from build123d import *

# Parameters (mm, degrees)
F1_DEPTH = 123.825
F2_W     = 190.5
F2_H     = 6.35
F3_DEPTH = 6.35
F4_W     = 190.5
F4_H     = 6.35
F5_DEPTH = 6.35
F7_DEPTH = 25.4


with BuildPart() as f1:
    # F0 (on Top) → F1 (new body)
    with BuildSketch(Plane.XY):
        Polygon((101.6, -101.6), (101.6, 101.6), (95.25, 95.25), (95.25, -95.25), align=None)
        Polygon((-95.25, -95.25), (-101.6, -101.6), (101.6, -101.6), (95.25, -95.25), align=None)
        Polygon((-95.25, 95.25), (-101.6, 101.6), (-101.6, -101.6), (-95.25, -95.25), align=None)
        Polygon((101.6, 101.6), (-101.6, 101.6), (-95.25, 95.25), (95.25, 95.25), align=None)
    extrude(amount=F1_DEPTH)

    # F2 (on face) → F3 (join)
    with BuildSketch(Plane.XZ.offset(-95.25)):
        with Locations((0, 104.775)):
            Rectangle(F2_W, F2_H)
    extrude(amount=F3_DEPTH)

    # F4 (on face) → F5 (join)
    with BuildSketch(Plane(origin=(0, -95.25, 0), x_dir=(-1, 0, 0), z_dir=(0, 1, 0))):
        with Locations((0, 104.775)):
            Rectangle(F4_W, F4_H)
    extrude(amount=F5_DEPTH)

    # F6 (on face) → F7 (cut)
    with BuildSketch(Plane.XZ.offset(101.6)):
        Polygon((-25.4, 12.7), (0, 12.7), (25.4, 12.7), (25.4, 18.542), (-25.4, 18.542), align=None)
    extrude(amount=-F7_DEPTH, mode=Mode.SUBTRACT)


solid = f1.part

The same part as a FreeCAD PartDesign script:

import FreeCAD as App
import Part
import Sketcher
from FreeCAD import Vector
Q = App.Units.Quantity

doc = App.newDocument("Part")
body = doc.addObject("PartDesign::Body", "Body")

# Sketch on XY plane
sketch1 = body.newObject("Sketcher::SketchObject", "Sketch")
sketch1.AttachmentSupport = (doc.getObject("XY_Plane"), [""])
sketch1.MapMode = "FlatFace"
sketch1.addGeometry([
    Part.LineSegment(Vector(102, -102, 0), Vector(102, 102, 0)),  # 0
    Part.LineSegment(Vector(102, 102, 0), Vector(-102, 102, 0)),  # 1
    Part.LineSegment(Vector(-102, 102, 0), Vector(-102, -102, 0)),  # 2
    Part.LineSegment(Vector(-102, -102, 0), Vector(102, -102, 0)),  # 3
    Part.LineSegment(Vector(95, 95, 0), Vector(95, -95, 0)),  # 4
    Part.LineSegment(Vector(95, -95, 0), Vector(-95, -95, 0)),  # 5
    Part.LineSegment(Vector(-95, -95, 0), Vector(-95, 95, 0)),  # 6
    Part.LineSegment(Vector(-95, 95, 0), Vector(95, 95, 0)),  # 7
], False)
sketch1.addConstraint([
    Sketcher.Constraint("Coincident", 0, 2, 1, 1),
    Sketcher.Constraint("Coincident", 1, 2, 2, 1),
    Sketcher.Constraint("Coincident", 2, 2, 3, 1),
    Sketcher.Constraint("Coincident", 3, 2, 0, 1),
    Sketcher.Constraint("Coincident", 4, 2, 5, 1),
    Sketcher.Constraint("Coincident", 5, 2, 6, 1),
    Sketcher.Constraint("Coincident", 6, 2, 7, 1),
    Sketcher.Constraint("Coincident", 7, 2, 4, 1),
    Sketcher.Constraint("Vertical", 0),
    Sketcher.Constraint("Horizontal", 1),
    Sketcher.Constraint("Vertical", 2),
    Sketcher.Constraint("Horizontal", 3),
    Sketcher.Constraint("Vertical", 4),
    Sketcher.Constraint("Horizontal", 5),
    Sketcher.Constraint("Vertical", 6),
    Sketcher.Constraint("Horizontal", 7),
    Sketcher.Constraint("Symmetric", 0, 2, 2, 2, -1, 1),
    Sketcher.Constraint("Symmetric", 4, 2, 6, 2, -1, 1),
    Sketcher.Constraint("Equal", 3, 0),
    Sketcher.Constraint("Equal", 7, 4),
    Sketcher.Constraint("DistanceX", 1, 2, 1, 1, Q("8 in")),
    Sketcher.Constraint("DistanceX", 5, 2, 5, 1, Q("7.5 in")),
])
pad1 = body.newObject("PartDesign::Pad", "Pad")
pad1.Profile = sketch1
pad1.Length = Q("4.875 in")

# Sketch on XZ plane
sketch2 = body.newObject("Sketcher::SketchObject", "Sketch001")
sketch2.AttachmentSupport = (doc.getObject("XZ_Plane"), [""])
sketch2.MapMode = "FlatFace"
sketch2.AttachmentOffset = App.Placement(Vector(0, 0, -3.75 * 25.4), App.Rotation())
sketch2.addGeometry([
    Part.LineSegment(Vector(-95, 108, 0), Vector(-95, 102, 0)),
    Part.LineSegment(Vector(-95, 102, 0), Vector(95, 102, 0)),
    Part.LineSegment(Vector(95, 102, 0), Vector(95, 108, 0)),
    Part.LineSegment(Vector(95, 108, 0), Vector(-95, 108, 0)),
], False)
sketch2.addConstraint([
    Sketcher.Constraint("Coincident", 0, 2, 1, 1),
    Sketcher.Constraint("Coincident", 1, 2, 2, 1),
    Sketcher.Constraint("Coincident", 2, 2, 3, 1),
    Sketcher.Constraint("Coincident", 3, 2, 0, 1),
    Sketcher.Constraint("Vertical", 0),
    Sketcher.Constraint("Horizontal", 1),
    Sketcher.Constraint("Vertical", 2),
    Sketcher.Constraint("Horizontal", 3),
    Sketcher.Constraint("DistanceX", 1, 1, 1, 2, Q("7.5 in")),
    Sketcher.Constraint("DistanceY", -1, 1, 0, 2, Q("4 in")),
    Sketcher.Constraint("DistanceY", 0, 2, 0, 1, Q("0.25 in")),
    Sketcher.Constraint("DistanceX", 0, 2, -1, 1, Q("3.75 in")),
])
pad2 = body.newObject("PartDesign::Pad", "Pad001")
pad2.Profile = sketch2
pad2.Length = Q("0.25 in")

# Sketch on XZ plane
sketch3 = body.newObject("Sketcher::SketchObject", "Sketch002")
sketch3.AttachmentSupport = (doc.getObject("XZ_Plane"), [""])
sketch3.MapMode = "FlatFace"
sketch3.AttachmentOffset = App.Placement(Vector(0, 0, 3.75 * 25.4), App.Rotation())
sketch3.addGeometry([
    Part.LineSegment(Vector(95, 108, 0), Vector(95, 102, 0)),
    Part.LineSegment(Vector(95, 102, 0), Vector(-95, 102, 0)),
    Part.LineSegment(Vector(-95, 102, 0), Vector(-95, 108, 0)),
    Part.LineSegment(Vector(-95, 108, 0), Vector(95, 108, 0)),
], False)
sketch3.addConstraint([
    Sketcher.Constraint("Coincident", 0, 2, 1, 1),
    Sketcher.Constraint("Coincident", 1, 2, 2, 1),
    Sketcher.Constraint("Coincident", 2, 2, 3, 1),
    Sketcher.Constraint("Coincident", 3, 2, 0, 1),
    Sketcher.Constraint("Vertical", 0),
    Sketcher.Constraint("Horizontal", 1),
    Sketcher.Constraint("Vertical", 2),
    Sketcher.Constraint("Horizontal", 3),
    Sketcher.Constraint("DistanceX", 1, 2, 1, 1, Q("7.5 in")),
    Sketcher.Constraint("DistanceY", -1, 1, 0, 2, Q("4 in")),
    Sketcher.Constraint("DistanceY", 0, 2, 0, 1, Q("0.25 in")),
    Sketcher.Constraint("DistanceX", -1, 1, 0, 2, Q("3.75 in")),
])
pad3 = body.newObject("PartDesign::Pad", "Pad002")
pad3.Profile = sketch3
pad3.Length = Q("0.25 in")
pad3.Reversed = True

# Sketch on XZ plane
sketch4 = body.newObject("Sketcher::SketchObject", "Sketch003")
sketch4.AttachmentSupport = (doc.getObject("XZ_Plane"), [""])
sketch4.MapMode = "FlatFace"
sketch4.AttachmentOffset = App.Placement(Vector(0, 0, 4 * 25.4), App.Rotation())
sketch4.addGeometry([
    Part.LineSegment(Vector(-25, 13, 0), Vector(25, 13, 0)),
    Part.LineSegment(Vector(25, 13, 0), Vector(25, 19, 0)),
    Part.LineSegment(Vector(25, 19, 0), Vector(-25, 19, 0)),
    Part.LineSegment(Vector(-25, 19, 0), Vector(-25, 13, 0)),
], False)
sketch4.addConstraint([
    Sketcher.Constraint("Coincident", 0, 2, 1, 1),
    Sketcher.Constraint("Coincident", 1, 2, 2, 1),
    Sketcher.Constraint("Coincident", 2, 2, 3, 1),
    Sketcher.Constraint("Coincident", 3, 2, 0, 1),
    Sketcher.Constraint("Horizontal", 0),
    Sketcher.Constraint("Vertical", 1),
    Sketcher.Constraint("Horizontal", 2),
    Sketcher.Constraint("Vertical", 3),
    Sketcher.Constraint("DistanceX", 0, 1, 0, 2, Q("2 in")),
    Sketcher.Constraint("DistanceX", -1, 1, 0, 2, Q("1 in")),
    Sketcher.Constraint("DistanceY", 1, 1, 1, 2, Q("0.23 in")),
    Sketcher.Constraint("DistanceY", -1, 1, 0, 2, Q("0.5 in")),
])
pocket1 = body.newObject("PartDesign::Pocket", "Pocket")
pocket1.Profile = sketch4
pocket1.Length = Q("1 in")

doc.recompute()
